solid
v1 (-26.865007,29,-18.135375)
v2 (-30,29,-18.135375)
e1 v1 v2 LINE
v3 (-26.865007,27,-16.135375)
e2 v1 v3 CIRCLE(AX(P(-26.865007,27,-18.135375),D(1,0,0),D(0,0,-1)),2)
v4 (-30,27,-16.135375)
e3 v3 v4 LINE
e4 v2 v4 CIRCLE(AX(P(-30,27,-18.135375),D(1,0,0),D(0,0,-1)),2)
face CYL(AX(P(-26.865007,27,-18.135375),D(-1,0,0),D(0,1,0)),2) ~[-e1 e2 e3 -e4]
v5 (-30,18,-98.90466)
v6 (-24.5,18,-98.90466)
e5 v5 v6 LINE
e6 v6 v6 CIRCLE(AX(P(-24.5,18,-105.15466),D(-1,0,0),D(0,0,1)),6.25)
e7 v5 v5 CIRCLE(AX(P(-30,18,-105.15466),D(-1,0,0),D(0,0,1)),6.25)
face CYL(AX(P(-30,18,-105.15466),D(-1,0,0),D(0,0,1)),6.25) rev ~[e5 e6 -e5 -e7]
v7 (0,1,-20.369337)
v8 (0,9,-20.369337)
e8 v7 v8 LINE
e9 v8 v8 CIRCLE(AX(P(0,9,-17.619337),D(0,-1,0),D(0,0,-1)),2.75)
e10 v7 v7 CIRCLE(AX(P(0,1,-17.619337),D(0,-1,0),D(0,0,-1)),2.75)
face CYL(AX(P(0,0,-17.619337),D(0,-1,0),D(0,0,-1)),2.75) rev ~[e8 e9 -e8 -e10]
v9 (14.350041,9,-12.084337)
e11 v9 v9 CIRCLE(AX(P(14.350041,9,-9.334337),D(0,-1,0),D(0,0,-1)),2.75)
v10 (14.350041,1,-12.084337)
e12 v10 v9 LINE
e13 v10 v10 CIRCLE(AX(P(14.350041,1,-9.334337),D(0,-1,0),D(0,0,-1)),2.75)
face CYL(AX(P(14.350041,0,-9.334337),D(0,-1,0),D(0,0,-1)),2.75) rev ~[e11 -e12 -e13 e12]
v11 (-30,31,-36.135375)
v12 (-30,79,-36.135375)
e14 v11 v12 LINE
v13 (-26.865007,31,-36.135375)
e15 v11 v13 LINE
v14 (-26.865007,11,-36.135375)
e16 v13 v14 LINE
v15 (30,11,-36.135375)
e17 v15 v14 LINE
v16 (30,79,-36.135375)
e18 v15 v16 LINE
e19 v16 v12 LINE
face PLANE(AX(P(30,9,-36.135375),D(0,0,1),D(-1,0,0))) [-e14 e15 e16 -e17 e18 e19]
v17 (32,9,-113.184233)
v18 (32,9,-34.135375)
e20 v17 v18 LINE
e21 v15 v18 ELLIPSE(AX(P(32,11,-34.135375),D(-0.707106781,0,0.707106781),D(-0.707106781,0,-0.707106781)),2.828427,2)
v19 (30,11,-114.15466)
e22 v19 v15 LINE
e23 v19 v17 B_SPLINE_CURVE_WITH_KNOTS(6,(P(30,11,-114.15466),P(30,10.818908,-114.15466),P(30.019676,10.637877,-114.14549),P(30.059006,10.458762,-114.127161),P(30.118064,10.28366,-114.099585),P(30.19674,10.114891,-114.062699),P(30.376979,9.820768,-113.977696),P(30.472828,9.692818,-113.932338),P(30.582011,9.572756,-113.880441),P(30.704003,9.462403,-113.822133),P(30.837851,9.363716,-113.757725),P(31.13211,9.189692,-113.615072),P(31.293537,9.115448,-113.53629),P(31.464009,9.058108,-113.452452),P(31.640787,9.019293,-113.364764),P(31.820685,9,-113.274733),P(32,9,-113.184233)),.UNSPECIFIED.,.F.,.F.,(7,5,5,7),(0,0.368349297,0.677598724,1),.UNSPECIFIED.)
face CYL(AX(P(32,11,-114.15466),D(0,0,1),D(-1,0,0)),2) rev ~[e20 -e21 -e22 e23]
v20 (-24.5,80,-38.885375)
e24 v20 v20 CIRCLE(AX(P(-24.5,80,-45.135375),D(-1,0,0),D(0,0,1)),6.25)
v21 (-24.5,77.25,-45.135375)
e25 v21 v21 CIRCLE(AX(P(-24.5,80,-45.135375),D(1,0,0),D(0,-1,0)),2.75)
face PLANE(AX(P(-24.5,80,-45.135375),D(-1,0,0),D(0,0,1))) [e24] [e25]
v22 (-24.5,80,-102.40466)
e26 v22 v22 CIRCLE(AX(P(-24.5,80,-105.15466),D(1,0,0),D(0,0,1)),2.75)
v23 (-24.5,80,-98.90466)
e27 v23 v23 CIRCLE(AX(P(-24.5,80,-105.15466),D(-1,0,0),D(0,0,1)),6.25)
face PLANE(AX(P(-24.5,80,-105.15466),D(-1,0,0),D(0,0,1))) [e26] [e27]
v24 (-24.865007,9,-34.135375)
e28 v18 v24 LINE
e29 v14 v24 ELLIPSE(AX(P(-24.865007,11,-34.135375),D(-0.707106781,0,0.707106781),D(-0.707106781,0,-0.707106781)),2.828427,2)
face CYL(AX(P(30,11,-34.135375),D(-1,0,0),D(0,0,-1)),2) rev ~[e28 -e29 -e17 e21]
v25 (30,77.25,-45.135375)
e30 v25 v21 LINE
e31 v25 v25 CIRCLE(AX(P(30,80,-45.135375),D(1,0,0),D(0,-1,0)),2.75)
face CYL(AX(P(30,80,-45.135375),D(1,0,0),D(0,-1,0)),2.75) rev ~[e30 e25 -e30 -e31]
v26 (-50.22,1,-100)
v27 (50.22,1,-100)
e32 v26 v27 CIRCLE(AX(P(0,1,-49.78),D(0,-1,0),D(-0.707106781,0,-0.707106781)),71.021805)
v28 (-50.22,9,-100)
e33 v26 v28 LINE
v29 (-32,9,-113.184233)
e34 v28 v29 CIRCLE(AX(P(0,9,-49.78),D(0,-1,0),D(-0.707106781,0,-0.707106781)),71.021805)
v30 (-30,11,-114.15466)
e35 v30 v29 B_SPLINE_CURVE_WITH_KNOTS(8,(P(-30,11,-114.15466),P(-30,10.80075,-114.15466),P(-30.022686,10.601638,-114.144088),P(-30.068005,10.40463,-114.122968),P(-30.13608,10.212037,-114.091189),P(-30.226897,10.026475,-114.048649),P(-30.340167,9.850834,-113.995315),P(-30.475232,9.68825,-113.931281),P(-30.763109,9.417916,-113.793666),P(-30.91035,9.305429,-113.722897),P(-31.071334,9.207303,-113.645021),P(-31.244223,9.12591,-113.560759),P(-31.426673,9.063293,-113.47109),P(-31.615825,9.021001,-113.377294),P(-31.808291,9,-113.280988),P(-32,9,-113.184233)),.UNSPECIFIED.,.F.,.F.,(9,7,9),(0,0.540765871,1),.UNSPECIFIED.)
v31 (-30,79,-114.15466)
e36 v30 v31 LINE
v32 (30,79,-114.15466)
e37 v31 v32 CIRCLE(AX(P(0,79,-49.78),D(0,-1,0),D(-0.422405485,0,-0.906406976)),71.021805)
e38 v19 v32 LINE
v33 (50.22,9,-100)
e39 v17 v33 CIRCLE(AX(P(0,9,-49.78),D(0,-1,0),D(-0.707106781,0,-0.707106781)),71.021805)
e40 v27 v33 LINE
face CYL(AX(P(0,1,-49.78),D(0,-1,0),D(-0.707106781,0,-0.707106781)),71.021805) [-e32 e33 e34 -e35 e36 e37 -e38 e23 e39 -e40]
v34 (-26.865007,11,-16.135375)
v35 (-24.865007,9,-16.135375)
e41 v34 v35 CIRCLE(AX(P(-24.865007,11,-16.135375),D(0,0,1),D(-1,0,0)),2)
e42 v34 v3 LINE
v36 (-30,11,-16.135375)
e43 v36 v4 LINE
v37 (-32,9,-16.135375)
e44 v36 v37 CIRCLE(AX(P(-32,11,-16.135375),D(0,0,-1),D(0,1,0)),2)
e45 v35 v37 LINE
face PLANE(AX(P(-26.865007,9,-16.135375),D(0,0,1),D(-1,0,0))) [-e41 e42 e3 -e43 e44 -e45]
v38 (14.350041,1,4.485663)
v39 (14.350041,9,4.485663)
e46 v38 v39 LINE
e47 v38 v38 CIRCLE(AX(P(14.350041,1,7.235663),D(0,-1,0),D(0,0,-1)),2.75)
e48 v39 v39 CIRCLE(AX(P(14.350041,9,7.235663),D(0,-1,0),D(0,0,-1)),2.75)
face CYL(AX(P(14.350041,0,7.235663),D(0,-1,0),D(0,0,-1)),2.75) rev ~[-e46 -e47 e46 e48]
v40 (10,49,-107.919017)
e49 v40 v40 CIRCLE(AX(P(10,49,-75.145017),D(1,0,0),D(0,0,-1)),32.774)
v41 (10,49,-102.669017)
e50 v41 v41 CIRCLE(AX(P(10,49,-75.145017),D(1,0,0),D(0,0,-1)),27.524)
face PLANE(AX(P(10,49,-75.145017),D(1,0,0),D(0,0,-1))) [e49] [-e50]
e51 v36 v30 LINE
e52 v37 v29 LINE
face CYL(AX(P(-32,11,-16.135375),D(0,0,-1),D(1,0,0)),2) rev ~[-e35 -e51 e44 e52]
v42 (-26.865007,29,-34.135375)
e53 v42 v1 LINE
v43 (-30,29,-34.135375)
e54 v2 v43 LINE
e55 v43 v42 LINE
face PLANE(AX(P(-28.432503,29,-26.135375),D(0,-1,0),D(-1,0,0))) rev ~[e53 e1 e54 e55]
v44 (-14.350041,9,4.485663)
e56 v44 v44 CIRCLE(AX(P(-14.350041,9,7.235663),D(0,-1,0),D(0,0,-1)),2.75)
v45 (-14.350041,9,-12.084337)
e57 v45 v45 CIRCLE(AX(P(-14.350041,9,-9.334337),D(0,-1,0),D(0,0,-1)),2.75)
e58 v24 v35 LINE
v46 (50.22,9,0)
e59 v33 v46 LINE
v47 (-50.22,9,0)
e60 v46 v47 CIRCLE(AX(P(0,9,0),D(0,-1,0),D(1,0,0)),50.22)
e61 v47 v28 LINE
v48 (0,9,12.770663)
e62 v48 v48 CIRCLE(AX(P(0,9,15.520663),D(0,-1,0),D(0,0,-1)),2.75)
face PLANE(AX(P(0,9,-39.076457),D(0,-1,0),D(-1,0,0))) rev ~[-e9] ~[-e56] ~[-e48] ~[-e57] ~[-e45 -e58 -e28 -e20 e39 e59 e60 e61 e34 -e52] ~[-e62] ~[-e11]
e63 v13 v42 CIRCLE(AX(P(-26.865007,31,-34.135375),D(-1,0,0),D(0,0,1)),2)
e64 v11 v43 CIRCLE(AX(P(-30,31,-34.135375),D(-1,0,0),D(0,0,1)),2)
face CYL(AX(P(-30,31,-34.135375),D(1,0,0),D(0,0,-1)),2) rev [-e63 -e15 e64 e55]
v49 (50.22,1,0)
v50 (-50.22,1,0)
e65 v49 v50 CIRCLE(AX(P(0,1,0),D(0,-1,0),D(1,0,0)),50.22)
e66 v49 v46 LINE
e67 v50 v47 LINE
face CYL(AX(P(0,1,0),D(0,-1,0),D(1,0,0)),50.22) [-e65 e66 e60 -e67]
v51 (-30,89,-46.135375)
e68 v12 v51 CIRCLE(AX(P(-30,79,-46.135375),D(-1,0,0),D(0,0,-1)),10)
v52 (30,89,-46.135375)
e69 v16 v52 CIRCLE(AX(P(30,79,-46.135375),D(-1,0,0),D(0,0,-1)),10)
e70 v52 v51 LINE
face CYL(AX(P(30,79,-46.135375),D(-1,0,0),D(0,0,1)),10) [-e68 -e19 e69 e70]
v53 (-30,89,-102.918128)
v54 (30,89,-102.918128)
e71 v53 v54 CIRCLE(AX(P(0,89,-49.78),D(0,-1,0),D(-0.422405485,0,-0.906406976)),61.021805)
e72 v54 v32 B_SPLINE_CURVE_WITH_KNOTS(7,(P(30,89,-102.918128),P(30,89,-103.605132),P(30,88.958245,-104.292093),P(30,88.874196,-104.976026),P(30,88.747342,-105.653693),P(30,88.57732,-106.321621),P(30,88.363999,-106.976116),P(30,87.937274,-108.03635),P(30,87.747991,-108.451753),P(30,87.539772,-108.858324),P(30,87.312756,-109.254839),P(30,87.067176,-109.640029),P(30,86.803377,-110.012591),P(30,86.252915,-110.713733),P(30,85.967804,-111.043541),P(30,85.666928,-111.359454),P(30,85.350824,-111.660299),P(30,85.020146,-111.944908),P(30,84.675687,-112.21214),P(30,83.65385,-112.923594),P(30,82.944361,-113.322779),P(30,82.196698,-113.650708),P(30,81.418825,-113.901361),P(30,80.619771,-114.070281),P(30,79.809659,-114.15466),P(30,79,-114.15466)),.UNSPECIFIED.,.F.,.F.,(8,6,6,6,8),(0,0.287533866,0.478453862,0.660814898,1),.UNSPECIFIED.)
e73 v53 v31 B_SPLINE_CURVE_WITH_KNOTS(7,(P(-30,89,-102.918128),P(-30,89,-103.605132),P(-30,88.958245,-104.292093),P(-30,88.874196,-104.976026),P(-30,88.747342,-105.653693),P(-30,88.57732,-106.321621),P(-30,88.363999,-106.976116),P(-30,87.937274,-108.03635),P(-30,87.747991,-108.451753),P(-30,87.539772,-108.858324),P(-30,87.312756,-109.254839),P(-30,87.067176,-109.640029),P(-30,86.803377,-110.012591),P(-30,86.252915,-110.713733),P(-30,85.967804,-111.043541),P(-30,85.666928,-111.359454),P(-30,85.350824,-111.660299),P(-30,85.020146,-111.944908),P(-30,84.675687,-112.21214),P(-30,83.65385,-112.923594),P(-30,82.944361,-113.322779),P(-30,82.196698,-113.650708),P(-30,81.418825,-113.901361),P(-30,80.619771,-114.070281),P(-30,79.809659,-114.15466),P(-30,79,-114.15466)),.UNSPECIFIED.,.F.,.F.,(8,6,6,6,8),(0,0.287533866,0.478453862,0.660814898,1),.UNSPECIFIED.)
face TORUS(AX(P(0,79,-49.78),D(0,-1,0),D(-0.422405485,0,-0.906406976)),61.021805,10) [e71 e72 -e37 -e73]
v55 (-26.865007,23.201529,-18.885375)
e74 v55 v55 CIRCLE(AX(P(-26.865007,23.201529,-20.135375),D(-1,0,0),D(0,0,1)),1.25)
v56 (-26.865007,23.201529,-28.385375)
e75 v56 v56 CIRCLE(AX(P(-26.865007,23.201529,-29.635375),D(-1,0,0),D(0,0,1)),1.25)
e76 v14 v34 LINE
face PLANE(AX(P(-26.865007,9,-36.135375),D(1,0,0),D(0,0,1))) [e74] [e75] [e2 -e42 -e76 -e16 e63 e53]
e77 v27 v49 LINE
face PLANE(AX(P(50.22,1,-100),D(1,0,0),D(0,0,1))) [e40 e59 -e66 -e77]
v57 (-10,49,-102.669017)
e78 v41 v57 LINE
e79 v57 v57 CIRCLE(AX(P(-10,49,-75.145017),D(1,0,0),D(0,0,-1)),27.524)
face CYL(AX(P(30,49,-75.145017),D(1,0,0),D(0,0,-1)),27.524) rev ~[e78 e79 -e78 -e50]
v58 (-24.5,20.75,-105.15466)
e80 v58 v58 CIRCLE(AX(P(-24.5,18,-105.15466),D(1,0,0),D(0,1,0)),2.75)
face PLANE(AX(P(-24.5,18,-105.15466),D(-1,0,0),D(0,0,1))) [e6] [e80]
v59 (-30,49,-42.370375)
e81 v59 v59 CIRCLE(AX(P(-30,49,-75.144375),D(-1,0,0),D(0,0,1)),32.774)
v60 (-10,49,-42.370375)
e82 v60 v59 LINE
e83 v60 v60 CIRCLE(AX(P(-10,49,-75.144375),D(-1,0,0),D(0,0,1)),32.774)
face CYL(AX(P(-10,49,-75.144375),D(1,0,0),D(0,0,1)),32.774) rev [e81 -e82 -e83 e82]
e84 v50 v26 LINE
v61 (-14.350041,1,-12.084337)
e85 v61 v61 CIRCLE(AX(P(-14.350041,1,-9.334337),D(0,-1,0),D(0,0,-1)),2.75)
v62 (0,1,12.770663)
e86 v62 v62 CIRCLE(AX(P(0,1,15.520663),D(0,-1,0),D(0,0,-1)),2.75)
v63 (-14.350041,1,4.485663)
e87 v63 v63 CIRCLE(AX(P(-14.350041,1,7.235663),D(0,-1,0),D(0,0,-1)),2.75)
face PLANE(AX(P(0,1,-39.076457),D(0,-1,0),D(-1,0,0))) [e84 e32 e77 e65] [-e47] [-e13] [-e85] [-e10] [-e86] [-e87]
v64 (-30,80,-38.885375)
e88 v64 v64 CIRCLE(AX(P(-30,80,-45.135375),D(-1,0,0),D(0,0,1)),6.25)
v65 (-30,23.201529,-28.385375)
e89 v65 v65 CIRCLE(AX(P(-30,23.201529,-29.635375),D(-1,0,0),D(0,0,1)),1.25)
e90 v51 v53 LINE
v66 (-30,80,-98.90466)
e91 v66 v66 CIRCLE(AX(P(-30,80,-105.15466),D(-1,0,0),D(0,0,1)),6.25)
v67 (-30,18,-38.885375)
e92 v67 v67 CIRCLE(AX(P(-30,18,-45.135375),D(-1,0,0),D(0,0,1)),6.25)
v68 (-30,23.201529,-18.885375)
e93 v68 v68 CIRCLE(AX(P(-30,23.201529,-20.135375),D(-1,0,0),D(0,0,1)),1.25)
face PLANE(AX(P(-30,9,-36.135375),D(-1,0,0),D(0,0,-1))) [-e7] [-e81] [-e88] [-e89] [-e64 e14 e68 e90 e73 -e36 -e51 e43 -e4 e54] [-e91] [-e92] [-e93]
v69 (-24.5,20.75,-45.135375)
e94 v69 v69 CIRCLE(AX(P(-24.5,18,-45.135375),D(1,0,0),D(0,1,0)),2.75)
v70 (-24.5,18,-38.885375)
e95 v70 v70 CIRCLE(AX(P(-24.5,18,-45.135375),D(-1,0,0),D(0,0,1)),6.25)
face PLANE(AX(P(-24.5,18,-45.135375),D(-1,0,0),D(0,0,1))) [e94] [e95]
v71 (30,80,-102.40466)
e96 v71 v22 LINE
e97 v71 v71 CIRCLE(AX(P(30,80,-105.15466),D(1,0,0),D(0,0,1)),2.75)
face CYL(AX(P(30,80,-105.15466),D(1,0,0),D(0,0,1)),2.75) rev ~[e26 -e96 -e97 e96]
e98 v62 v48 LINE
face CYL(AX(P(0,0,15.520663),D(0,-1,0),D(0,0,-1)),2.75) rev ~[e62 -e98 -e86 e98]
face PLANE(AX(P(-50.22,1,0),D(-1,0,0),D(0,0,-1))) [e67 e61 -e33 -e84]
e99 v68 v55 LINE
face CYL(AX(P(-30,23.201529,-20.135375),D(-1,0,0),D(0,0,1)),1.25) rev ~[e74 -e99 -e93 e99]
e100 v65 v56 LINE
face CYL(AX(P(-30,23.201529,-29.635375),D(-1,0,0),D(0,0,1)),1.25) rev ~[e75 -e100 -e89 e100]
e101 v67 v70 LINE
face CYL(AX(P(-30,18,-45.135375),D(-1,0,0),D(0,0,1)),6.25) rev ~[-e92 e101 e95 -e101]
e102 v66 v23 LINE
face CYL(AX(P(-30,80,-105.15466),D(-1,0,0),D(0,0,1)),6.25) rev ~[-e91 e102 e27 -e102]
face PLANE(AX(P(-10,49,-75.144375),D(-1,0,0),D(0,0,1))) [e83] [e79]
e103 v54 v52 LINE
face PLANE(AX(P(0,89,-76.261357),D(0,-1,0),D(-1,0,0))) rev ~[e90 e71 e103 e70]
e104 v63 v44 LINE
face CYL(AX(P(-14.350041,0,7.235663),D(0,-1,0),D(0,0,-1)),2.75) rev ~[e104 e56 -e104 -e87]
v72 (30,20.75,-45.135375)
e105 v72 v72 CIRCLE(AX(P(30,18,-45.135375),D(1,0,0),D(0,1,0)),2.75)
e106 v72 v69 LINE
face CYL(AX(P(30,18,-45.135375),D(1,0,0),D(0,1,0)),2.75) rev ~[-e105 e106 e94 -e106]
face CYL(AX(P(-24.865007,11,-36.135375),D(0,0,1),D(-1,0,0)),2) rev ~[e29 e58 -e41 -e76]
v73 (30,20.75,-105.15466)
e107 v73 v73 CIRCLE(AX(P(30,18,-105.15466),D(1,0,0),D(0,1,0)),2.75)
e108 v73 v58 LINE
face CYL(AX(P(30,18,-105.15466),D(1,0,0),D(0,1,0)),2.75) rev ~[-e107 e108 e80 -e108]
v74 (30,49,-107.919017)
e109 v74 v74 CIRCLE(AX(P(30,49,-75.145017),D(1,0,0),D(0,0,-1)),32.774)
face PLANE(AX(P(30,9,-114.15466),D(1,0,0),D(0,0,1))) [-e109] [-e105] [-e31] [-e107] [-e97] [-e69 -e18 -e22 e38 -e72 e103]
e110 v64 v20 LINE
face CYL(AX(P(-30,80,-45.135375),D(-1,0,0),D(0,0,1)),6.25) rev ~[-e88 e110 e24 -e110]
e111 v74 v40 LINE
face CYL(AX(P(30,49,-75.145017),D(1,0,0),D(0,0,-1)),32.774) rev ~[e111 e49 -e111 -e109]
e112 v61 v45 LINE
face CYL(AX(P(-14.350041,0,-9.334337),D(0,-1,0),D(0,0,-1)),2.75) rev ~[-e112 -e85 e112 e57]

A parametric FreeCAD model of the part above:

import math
import FreeCAD as App
import Part
import Sketcher
from FreeCAD import Vector


def edges_at(feature, points):
    """Names of the edges that pass closest to the given points."""
    edges = feature.Shape.Edges
    near = lambda p: min(range(len(edges)), key=lambda i: edges[i].distToShape(Part.Vertex(*p))[0])
    return sorted({f"Edge{near(p) + 1}" for p in points})

doc = App.newDocument("Part")
body = doc.addObject("PartDesign::Body", "Body")

sketch1 = body.newObject("Sketcher::SketchObject", "Sketch")
sketch1.AttachmentSupport = (doc.getObject("XZ_Plane"), [""])
sketch1.MapMode = "FlatFace"
sketch1.addGeometry([
    Part.Circle(Vector(0, -1, 0), Vector(0, 0, 1), 44.2),
    Part.Circle(Vector(-14.4, -9.3, 0), Vector(0, 0, 1), 2.8),
    Part.Circle(Vector(0, -17.6, 0), Vector(0, 0, 1), 2.8),
    Part.Circle(Vector(-14.4, 7.2, 0), Vector(0, 0, 1), 2.8),
    Part.Circle(Vector(14.4, -9.3, 0), Vector(0, 0, 1), 2.8),
    Part.Circle(Vector(0, 15.5, 0), Vector(0, 0, 1), 2.8),
    Part.Circle(Vector(14.4, 7.2, 0), Vector(0, 0, 1), 2.8),
], False)
sketch1.addConstraint([
    Sketcher.Constraint("Equal", 1, 2),
    Sketcher.Constraint("Equal", 2, 3),
    Sketcher.Constraint("Equal", 3, 4),
    Sketcher.Constraint("Equal", 4, 5),
    Sketcher.Constraint("Equal", 5, 6),
    Sketcher.Constraint("Symmetric", 1, 3, 4, 3, -2),
    Sketcher.Constraint("Symmetric", 3, 3, 6, 3, -2),
    Sketcher.Constraint("PointOnObject", 0, 3, -2),
    Sketcher.Constraint("PointOnObject", 2, 3, -2),
    Sketcher.Constraint("PointOnObject", 5, 3, -2),
    Sketcher.Constraint("Vertical", 1, 3, 3, 3),
    Sketcher.Constraint("Diameter", 1, 5.5),
    Sketcher.Constraint("Diameter", 0, 88.44),
    Sketcher.Constraint("DistanceY", 2, 3, 0, 3, 16.57),
    Sketcher.Constraint("DistanceY", 1, 3, 3, 3, 16.57),
    Sketcher.Constraint("DistanceY", 0, 3, 5, 3, 16.57),
    Sketcher.Constraint("DistanceY", 1, 3, 0, 3, 8.285),
    Sketcher.Constraint("DistanceX", 1, 3, -1, 1, 14.350041),
    Sketcher.Constraint("DistanceY", 0, 3, -1, 1, 1.049337),
])
pad1 = body.newObject("PartDesign::Pad", "Pad")
pad1.Profile = sketch1
pad1.Length = 1
pad1.Reversed = True

sketch2 = body.newObject("Sketcher::SketchObject", "Sketch001")
sketch2.AttachmentSupport = (doc.getObject("XZ_Plane"), [""])
sketch2.MapMode = "FlatFace"
sketch2.AttachmentOffset = App.Placement(Vector(0, 0, -1), App.Rotation())
sketch2.addGeometry([
    Part.LineSegment(Vector(-50, -100, 0), Vector(-50, 0, 0)),
    Part.ArcOfCircle(Part.Circle(Vector(0, 0, 0), Vector(0, 0, 1), 50), math.radians(0), math.radians(180)),
    Part.LineSegment(Vector(50, 0, 0), Vector(50, -100, 0)),
    Part.ArcOfCircle(Part.Circle(Vector(0, -50, 0), Vector(0, 0, 1), 71), math.radians(-135), math.radians(-45)),
], False)
sketch2.addConstraint([
    Sketcher.Constraint("Tangent", 0, 2, 1, 2),
    Sketcher.Constraint("Tangent", 1, 1, 2, 1),
    Sketcher.Constraint("Coincident", 2, 2, 3, 2),
    Sketcher.Constraint("Coincident", 3, 1, 0, 1),
    Sketcher.Constraint("Vertical", 0),
    Sketcher.Constraint("Vertical", 2),
    Sketcher.Constraint("Coincident", 1, 3, -1, 1),
    Sketcher.Constraint("PointOnObject", 3, 3, -2),
    Sketcher.Constraint("DistanceY", 0, 1, 0, 2, 100.0),
    Sketcher.Constraint("Radius", 1, 50.22),
    Sketcher.Constraint("DistanceY", 3, 3, -1, 1, 49.78),
])
pad2 = body.newObject("PartDesign::Pad", "Pad001")
pad2.Profile = sketch2
pad2.Length = 8
pad2.Reversed = True

sketch3 = body.newObject("Sketcher::SketchObject", "Sketch002")
sketch3.AttachmentSupport = (doc.getObject("XZ_Plane"), [""])
sketch3.MapMode = "FlatFace"
sketch3.addGeometry([
    Part.Circle(Vector(0, 15.5, 0), Vector(0, 0, 1), 2.8),
    Part.Circle(Vector(14.4, 7.2, 0), Vector(0, 0, 1), 2.8),
    Part.Circle(Vector(14.4, -9.3, 0), Vector(0, 0, 1), 2.8),
    Part.Circle(Vector(0, -17.6, 0), Vector(0, 0, 1), 2.8),
    Part.Circle(Vector(-14.4, -9.3, 0), Vector(0, 0, 1), 2.8),
    Part.Circle(Vector(-14.4, 7.2, 0), Vector(0, 0, 1), 2.8),
], False)
sketch3.addConstraint([
    Sketcher.Constraint("Equal", 0, 1),
    Sketcher.Constraint("Equal", 1, 2),
    Sketcher.Constraint("Equal", 2, 3),
    Sketcher.Constraint("Equal", 3, 4),
    Sketcher.Constraint("Equal", 4, 5),
    Sketcher.Constraint("Symmetric", 2, 3, 4, 3, -2),
    Sketcher.Constraint("Symmetric", 1, 3, 5, 3, -2),
    Sketcher.Constraint("PointOnObject", 0, 3, -2),
    Sketcher.Constraint("PointOnObject", 3, 3, -2),
    Sketcher.Constraint("Vertical", 1, 3, 2, 3),
    Sketcher.Constraint("Diameter", 0, 5.5),
    Sketcher.Constraint("DistanceY", 2, 3, 1, 3, 16.57),
    Sketcher.Constraint("DistanceY", 3, 3, 0, 3, 33.14),
    Sketcher.Constraint("DistanceY", 1, 3, 0, 3, 8.285),
    Sketcher.Constraint("DistanceX", -1, 1, 1, 3, 14.350041),
    Sketcher.Constraint("DistanceY", -1, 1, 0, 3, 15.520663),
])
pocket1 = body.newObject("PartDesign::Pocket", "Pocket")
pocket1.Profile = sketch3
pocket1.Length = 20

sketch4 = body.newObject("Sketcher::SketchObject", "Sketch003")
sketch4.AttachmentSupport = (doc.getObject("XZ_Plane"), [""])
sketch4.MapMode = "FlatFace"
sketch4.AttachmentOffset = App.Placement(Vector(0, 0, -9), App.Rotation())
sketch4.addGeometry([
    Part.LineSegment(Vector(-30, -114, 0), Vector(-30, -36, 0)),
    Part.LineSegment(Vector(-30, -36, 0), Vector(30, -36, 0)),
    Part.LineSegment(Vector(30, -36, 0), Vector(30, -114, 0)),
    Part.ArcOfCircle(Part.Circle(Vector(0, -50, 0), Vector(0, 0, 1), 71), math.radians(-115), math.radians(-65)),
], False)
sketch4.addConstraint([
    Sketcher.Constraint("Coincident", 0, 2, 1, 1),
    Sketcher.Constraint("Coincident", 1, 2, 2, 1),
    Sketcher.Constraint("Coincident", 2, 2, 3, 2),
    Sketcher.Constraint("Coincident", 3, 1, 0, 1),
    Sketcher.Constraint("Vertical", 0),
    Sketcher.Constraint("Horizontal", 1),
    Sketcher.Constraint("Vertical", 2),
    Sketcher.Constraint("Symmetric", 2, 2, 3, 1, -2),
    Sketcher.Constraint("DistanceX", 1, 1, 1, 2, 60.0),
    Sketcher.Constraint("DistanceY", 3, 3, -1, 1, 49.78),
    Sketcher.Constraint("Radius", 3, 71.021805),
    Sketcher.Constraint("DistanceY", 0, 1, 0, 2, 78.019285),
])
pad3 = body.newObject("PartDesign::Pad", "Pad002")
pad3.Profile = sketch4
pad3.Length = 80
pad3.Reversed = True

sketch5 = body.newObject("Sketcher::SketchObject", "Sketch004")
sketch5.AttachmentSupport = (doc.getObject("YZ_Plane"), [""])
sketch5.MapMode = "FlatFace"
sketch5.AttachmentOffset = App.Placement(Vector(0, 0, -20), App.Rotation())
sketch5.addGeometry(Part.Circle(Vector(49, -75, 0), Vector(0, 0, 1), 33), False)
sketch5.addConstraint([
    Sketcher.Constraint("Diameter", 0, 65.548),
    Sketcher.Constraint("DistanceX", -1, 1, 0, 3, 49.0),
    Sketcher.Constraint("DistanceY", 0, 3, -1, 1, 75.144375),
])
pocket2 = body.newObject("PartDesign::Pocket", "Pocket001")
pocket2.Profile = sketch5
pocket2.Type = "TwoLengths"
pocket2.Length = 10
pocket2.Length2 = 10

sketch6 = body.newObject("Sketcher::SketchObject", "Sketch005")
sketch6.AttachmentSupport = (doc.getObject("YZ_Plane"), [""])
sketch6.MapMode = "FlatFace"
sketch6.AttachmentOffset = App.Placement(Vector(0, 0, 30), App.Rotation())
sketch6.addGeometry(Part.Circle(Vector(49, -75, 0), Vector(0, 0, 1), 33), False)
sketch6.addConstraint([
    Sketcher.Constraint("Diameter", 0, 65.548),
    Sketcher.Constraint("DistanceX", -1, 1, 0, 3, 49.0),
    Sketcher.Constraint("DistanceY", 0, 3, -1, 1, 75.145017),
])
pocket3 = body.newObject("PartDesign::Pocket", "Pocket002")
pocket3.Profile = sketch6
pocket3.Length = 20

sketch7 = body.newObject("Sketcher::SketchObject", "Sketch006")
sketch7.AttachmentSupport = (doc.getObject("YZ_Plane"), [""])
sketch7.MapMode = "FlatFace"
sketch7.AttachmentOffset = App.Placement(Vector(0, 0, 30), App.Rotation())
sketch7.addGeometry(Part.Circle(Vector(49, -75, 0), Vector(0, 0, 1), 28), False)
sketch7.addConstraint([
    Sketcher.Constraint("Diameter", 0, 55.048),
    Sketcher.Constraint("DistanceX", -1, 1, 0, 3, 49.0),
    Sketcher.Constraint("DistanceY", 0, 3, -1, 1, 75.145017),
])
pocket4 = body.newObject("PartDesign::Pocket", "Pocket003")
pocket4.Profile = sketch7
pocket4.Length = 66

sketch8 = body.newObject("Sketcher::SketchObject", "Sketch007")
sketch8.AttachmentSupport = (doc.getObject("XZ_Plane"), [""])
sketch8.MapMode = "FlatFace"
sketch8.AttachmentOffset = App.Placement(Vector(0, 0, -9), App.Rotation())
sketch8.addGeometry([
    Part.LineSegment(Vector(-26.9, -36.1, 0), Vector(-30, -36.1, 0)),
    Part.LineSegment(Vector(-30, -36.1, 0), Vector(-30, -16.1, 0)),
    Part.LineSegment(Vector(-30, -16.1, 0), Vector(-26.9, -16.1, 0)),
    Part.LineSegment(Vector(-26.9, -16.1, 0), Vector(-26.9, -36.1, 0)),
], False)
sketch8.addConstraint([
    Sketcher.Constraint("Coincident", 0, 2, 1, 1),
    Sketcher.Constraint("Coincident", 1, 2, 2, 1),
    Sketcher.Constraint("Coincident", 2, 2, 3, 1),
    Sketcher.Constraint("Coincident", 3, 2, 0, 1),
    Sketcher.Constraint("Horizontal", 0),
    Sketcher.Constraint("Vertical", 1),
    Sketcher.Constraint("Horizontal", 2),
    Sketcher.Constraint("Vertical", 3),
    Sketcher.Constraint("DistanceY", 1, 1, 1, 2, 20.0),
    Sketcher.Constraint("DistanceX", 0, 2, -1, 1, 30.0),
    Sketcher.Constraint("DistanceX", 0, 2, 0, 1, 3.134993),
    Sketcher.Constraint("DistanceY", 0, 2, -1, 1, 36.135375),
])
pad4 = body.newObject("PartDesign::Pad", "Pad003")
pad4.Profile = sketch8
pad4.Length = 20
pad4.Reversed = True

sketch9 = body.newObject("Sketcher::SketchObject", "Sketch008")
sketch9.AttachmentSupport = (doc.getObject("XZ_Plane"), [""])
sketch9.MapMode = "FlatFace"
sketch9.addGeometry([
    Part.Circle(Vector(0, -1, 0), Vector(0, 0, 1), 44.2),
    Part.Circle(Vector(-14.4, 7.2, 0), Vector(0, 0, 1), 2.8),
    Part.Circle(Vector(0, 15.5, 0), Vector(0, 0, 1), 2.8),
    Part.Circle(Vector(14.4, 7.2, 0), Vector(0, 0, 1), 2.8),
    Part.Circle(Vector(-14.4, -9.3, 0), Vector(0, 0, 1), 2.8),
    Part.Circle(Vector(0, -17.6, 0), Vector(0, 0, 1), 2.8),
    Part.Circle(Vector(14.4, -9.3, 0), Vector(0, 0, 1), 2.8),
], False)
sketch9.addConstraint([
    Sketcher.Constraint("Equal", 1, 2),
    Sketcher.Constraint("Equal", 2, 3),
    Sketcher.Constraint("Equal", 3, 4),
    Sketcher.Constraint("Equal", 4, 5),
    Sketcher.Constraint("Equal", 5, 6),
    Sketcher.Constraint("Symmetric", 1, 3, 3, 3, -2),
    Sketcher.Constraint("Symmetric", 4, 3, 6, 3, -2),
    Sketcher.Constraint("PointOnObject", 0, 3, -2),
    Sketcher.Constraint("PointOnObject", 2, 3, -2),
    Sketcher.Constraint("PointOnObject", 5, 3, -2),
    Sketcher.Constraint("Vertical", 1, 3, 4, 3),
    Sketcher.Constraint("Diameter", 1, 5.5),
    Sketcher.Constraint("Diameter", 0, 88.44),
    Sketcher.Constraint("DistanceY", 0, 3, 2, 3, 16.57),
    Sketcher.Constraint("DistanceY", 4, 3, 1, 3, 16.57),
    Sketcher.Constraint("DistanceY", 5, 3, 0, 3, 16.57),
    Sketcher.Constraint("DistanceY", 0, 3, 1, 3, 8.285),
    Sketcher.Constraint("DistanceX", 1, 3, -1, 1, 14.350041),
    Sketcher.Constraint("DistanceY", 0, 3, -1, 1, 1.049337),
])
pocket5 = body.newObject("PartDesign::Pocket", "Pocket004")
pocket5.Profile = sketch9
pocket5.Length = 1

sketch10 = body.newObject("Sketcher::SketchObject", "Sketch009")
sketch10.AttachmentSupport = (doc.getObject("YZ_Plane"), [""])
sketch10.MapMode = "FlatFace"
sketch10.AttachmentOffset = App.Placement(Vector(0, 0, -30), App.Rotation())
sketch10.addGeometry([
    Part.Circle(Vector(23.2, -29.6, 0), Vector(0, 0, 1), 1.2),
    Part.Circle(Vector(23.2, -20.1, 0), Vector(0, 0, 1), 1.2),
], False)
sketch10.addConstraint([
    Sketcher.Constraint("Equal", 0, 1),
    Sketcher.Constraint("Vertical", 0, 3, 1, 3),
    Sketcher.Constraint("Diameter", 0, 2.5),
    Sketcher.Constraint("DistanceY", 0, 3, 1, 3, 9.5),
    Sketcher.Constraint("DistanceX", -1, 1, 0, 3, 23.201529),
    Sketcher.Constraint("DistanceY", 0, 3, -1, 1, 29.635375),
])
pocket6 = body.newObject("PartDesign::Pocket", "Pocket005")
pocket6.Profile = sketch10
pocket6.Length = 10
pocket6.Reversed = True

sketch11 = body.newObject("Sketcher::SketchObject", "Sketch010")
sketch11.AttachmentSupport = (doc.getObject("YZ_Plane"), [""])
sketch11.MapMode = "FlatFace"
sketch11.AttachmentOffset = App.Placement(Vector(0, 0, 30), App.Rotation())
sketch11.addGeometry([
    Part.Circle(Vector(80, -45.1, 0), Vector(0, 0, 1), 2.8),
    Part.Circle(Vector(80, -105.2, 0), Vector(0, 0, 1), 2.8),
    Part.Circle(Vector(18, -105.2, 0), Vector(0, 0, 1), 2.8),
    Part.Circle(Vector(18, -45.1, 0), Vector(0, 0, 1), 2.8),
], False)
sketch11.addConstraint([
    Sketcher.Constraint("Equal", 0, 1),
    Sketcher.Constraint("Equal", 1, 2),
    Sketcher.Constraint("Equal", 2, 3),
    Sketcher.Constraint("Horizontal", 1, 3, 2, 3),
    Sketcher.Constraint("Horizontal", 0, 3, 3, 3),
    Sketcher.Constraint("Vertical", 0, 3, 1, 3),
    Sketcher.Constraint("Vertical", 2, 3, 3, 3),
    Sketcher.Constraint("Diameter", 0, 5.5),
    Sketcher.Constraint("DistanceX", -1, 1, 0, 3, 80.0),
    Sketcher.Constraint("DistanceX", -1, 1, 2, 3, 18.0),
    Sketcher.Constraint("DistanceY", 1, 3, -1, 1, 105.15466),
    Sketcher.Constraint("DistanceY", 0, 3, -1, 1, 45.135375),
])
pocket7 = body.newObject("PartDesign::Pocket", "Pocket006")
pocket7.Profile = sketch11
pocket7.Length = 83

sketch12 = body.newObject("Sketcher::SketchObject", "Sketch011")
sketch12.AttachmentSupport = (doc.getObject("YZ_Plane"), [""])
sketch12.MapMode = "FlatFace"
sketch12.AttachmentOffset = App.Placement(Vector(0, 0, -30), App.Rotation())
sketch12.addGeometry([
    Part.Circle(Vector(80, -105, 0), Vector(0, 0, 1), 6),
    Part.Circle(Vector(80, -45, 0), Vector(0, 0, 1), 6),
    Part.Circle(Vector(18, -45, 0), Vector(0, 0, 1), 6),
    Part.Circle(Vector(18, -105, 0), Vector(0, 0, 1), 6),
], False)
sketch12.addConstraint([
    Sketcher.Constraint("Equal", 0, 1),
    Sketcher.Constraint("Equal", 1, 2),
    Sketcher.Constraint("Equal", 2, 3),
    Sketcher.Constraint("Horizontal", 1, 3, 2, 3),
    Sketcher.Constraint("Horizontal", 0, 3, 3, 3),
    Sketcher.Constraint("Vertical", 0, 3, 1, 3),
    Sketcher.Constraint("Vertical", 2, 3, 3, 3),
    Sketcher.Constraint("Diameter", 0, 12.5),
    Sketcher.Constraint("DistanceX", -1, 1, 0, 3, 80.0),
    Sketcher.Constraint("DistanceX", -1, 1, 2, 3, 18.0),
    Sketcher.Constraint("DistanceY", 0, 3, -1, 1, 105.15466),
    Sketcher.Constraint("DistanceY", 1, 3, -1, 1, 45.135375),
])
pocket8 = body.newObject("PartDesign::Pocket", "Pocket007")
pocket8.Profile = sketch12
pocket8.Length = 5.5
pocket8.Reversed = True
doc.recompute()

fillet = body.newObject("PartDesign::Fillet", "Fillet")
fillet.Base = (pocket8, edges_at(pocket8, [(0, 89, -120.802), (0, 89, -36.135)]))
fillet.Radius = 10
doc.recompute()

fillet2 = body.newObject("PartDesign::Fillet", "Fillet001")
fillet2.Base = (fillet, edges_at(fillet, [
    (1.567, 9, -36.135),
    (-26.865, 9, -26.135),
    (-30, 9, -65.145),
    (30, 9, -75.145),
]))
fillet2.Radius = 2
doc.recompute()

fillet3 = body.newObject("PartDesign::Fillet", "Fillet002")
fillet3.Base = (fillet2, edges_at(fillet2, [(-28.433, 29, -16.135), (-28.433, 29, -36.135)]))
fillet3.Radius = 2

doc.recompute()
